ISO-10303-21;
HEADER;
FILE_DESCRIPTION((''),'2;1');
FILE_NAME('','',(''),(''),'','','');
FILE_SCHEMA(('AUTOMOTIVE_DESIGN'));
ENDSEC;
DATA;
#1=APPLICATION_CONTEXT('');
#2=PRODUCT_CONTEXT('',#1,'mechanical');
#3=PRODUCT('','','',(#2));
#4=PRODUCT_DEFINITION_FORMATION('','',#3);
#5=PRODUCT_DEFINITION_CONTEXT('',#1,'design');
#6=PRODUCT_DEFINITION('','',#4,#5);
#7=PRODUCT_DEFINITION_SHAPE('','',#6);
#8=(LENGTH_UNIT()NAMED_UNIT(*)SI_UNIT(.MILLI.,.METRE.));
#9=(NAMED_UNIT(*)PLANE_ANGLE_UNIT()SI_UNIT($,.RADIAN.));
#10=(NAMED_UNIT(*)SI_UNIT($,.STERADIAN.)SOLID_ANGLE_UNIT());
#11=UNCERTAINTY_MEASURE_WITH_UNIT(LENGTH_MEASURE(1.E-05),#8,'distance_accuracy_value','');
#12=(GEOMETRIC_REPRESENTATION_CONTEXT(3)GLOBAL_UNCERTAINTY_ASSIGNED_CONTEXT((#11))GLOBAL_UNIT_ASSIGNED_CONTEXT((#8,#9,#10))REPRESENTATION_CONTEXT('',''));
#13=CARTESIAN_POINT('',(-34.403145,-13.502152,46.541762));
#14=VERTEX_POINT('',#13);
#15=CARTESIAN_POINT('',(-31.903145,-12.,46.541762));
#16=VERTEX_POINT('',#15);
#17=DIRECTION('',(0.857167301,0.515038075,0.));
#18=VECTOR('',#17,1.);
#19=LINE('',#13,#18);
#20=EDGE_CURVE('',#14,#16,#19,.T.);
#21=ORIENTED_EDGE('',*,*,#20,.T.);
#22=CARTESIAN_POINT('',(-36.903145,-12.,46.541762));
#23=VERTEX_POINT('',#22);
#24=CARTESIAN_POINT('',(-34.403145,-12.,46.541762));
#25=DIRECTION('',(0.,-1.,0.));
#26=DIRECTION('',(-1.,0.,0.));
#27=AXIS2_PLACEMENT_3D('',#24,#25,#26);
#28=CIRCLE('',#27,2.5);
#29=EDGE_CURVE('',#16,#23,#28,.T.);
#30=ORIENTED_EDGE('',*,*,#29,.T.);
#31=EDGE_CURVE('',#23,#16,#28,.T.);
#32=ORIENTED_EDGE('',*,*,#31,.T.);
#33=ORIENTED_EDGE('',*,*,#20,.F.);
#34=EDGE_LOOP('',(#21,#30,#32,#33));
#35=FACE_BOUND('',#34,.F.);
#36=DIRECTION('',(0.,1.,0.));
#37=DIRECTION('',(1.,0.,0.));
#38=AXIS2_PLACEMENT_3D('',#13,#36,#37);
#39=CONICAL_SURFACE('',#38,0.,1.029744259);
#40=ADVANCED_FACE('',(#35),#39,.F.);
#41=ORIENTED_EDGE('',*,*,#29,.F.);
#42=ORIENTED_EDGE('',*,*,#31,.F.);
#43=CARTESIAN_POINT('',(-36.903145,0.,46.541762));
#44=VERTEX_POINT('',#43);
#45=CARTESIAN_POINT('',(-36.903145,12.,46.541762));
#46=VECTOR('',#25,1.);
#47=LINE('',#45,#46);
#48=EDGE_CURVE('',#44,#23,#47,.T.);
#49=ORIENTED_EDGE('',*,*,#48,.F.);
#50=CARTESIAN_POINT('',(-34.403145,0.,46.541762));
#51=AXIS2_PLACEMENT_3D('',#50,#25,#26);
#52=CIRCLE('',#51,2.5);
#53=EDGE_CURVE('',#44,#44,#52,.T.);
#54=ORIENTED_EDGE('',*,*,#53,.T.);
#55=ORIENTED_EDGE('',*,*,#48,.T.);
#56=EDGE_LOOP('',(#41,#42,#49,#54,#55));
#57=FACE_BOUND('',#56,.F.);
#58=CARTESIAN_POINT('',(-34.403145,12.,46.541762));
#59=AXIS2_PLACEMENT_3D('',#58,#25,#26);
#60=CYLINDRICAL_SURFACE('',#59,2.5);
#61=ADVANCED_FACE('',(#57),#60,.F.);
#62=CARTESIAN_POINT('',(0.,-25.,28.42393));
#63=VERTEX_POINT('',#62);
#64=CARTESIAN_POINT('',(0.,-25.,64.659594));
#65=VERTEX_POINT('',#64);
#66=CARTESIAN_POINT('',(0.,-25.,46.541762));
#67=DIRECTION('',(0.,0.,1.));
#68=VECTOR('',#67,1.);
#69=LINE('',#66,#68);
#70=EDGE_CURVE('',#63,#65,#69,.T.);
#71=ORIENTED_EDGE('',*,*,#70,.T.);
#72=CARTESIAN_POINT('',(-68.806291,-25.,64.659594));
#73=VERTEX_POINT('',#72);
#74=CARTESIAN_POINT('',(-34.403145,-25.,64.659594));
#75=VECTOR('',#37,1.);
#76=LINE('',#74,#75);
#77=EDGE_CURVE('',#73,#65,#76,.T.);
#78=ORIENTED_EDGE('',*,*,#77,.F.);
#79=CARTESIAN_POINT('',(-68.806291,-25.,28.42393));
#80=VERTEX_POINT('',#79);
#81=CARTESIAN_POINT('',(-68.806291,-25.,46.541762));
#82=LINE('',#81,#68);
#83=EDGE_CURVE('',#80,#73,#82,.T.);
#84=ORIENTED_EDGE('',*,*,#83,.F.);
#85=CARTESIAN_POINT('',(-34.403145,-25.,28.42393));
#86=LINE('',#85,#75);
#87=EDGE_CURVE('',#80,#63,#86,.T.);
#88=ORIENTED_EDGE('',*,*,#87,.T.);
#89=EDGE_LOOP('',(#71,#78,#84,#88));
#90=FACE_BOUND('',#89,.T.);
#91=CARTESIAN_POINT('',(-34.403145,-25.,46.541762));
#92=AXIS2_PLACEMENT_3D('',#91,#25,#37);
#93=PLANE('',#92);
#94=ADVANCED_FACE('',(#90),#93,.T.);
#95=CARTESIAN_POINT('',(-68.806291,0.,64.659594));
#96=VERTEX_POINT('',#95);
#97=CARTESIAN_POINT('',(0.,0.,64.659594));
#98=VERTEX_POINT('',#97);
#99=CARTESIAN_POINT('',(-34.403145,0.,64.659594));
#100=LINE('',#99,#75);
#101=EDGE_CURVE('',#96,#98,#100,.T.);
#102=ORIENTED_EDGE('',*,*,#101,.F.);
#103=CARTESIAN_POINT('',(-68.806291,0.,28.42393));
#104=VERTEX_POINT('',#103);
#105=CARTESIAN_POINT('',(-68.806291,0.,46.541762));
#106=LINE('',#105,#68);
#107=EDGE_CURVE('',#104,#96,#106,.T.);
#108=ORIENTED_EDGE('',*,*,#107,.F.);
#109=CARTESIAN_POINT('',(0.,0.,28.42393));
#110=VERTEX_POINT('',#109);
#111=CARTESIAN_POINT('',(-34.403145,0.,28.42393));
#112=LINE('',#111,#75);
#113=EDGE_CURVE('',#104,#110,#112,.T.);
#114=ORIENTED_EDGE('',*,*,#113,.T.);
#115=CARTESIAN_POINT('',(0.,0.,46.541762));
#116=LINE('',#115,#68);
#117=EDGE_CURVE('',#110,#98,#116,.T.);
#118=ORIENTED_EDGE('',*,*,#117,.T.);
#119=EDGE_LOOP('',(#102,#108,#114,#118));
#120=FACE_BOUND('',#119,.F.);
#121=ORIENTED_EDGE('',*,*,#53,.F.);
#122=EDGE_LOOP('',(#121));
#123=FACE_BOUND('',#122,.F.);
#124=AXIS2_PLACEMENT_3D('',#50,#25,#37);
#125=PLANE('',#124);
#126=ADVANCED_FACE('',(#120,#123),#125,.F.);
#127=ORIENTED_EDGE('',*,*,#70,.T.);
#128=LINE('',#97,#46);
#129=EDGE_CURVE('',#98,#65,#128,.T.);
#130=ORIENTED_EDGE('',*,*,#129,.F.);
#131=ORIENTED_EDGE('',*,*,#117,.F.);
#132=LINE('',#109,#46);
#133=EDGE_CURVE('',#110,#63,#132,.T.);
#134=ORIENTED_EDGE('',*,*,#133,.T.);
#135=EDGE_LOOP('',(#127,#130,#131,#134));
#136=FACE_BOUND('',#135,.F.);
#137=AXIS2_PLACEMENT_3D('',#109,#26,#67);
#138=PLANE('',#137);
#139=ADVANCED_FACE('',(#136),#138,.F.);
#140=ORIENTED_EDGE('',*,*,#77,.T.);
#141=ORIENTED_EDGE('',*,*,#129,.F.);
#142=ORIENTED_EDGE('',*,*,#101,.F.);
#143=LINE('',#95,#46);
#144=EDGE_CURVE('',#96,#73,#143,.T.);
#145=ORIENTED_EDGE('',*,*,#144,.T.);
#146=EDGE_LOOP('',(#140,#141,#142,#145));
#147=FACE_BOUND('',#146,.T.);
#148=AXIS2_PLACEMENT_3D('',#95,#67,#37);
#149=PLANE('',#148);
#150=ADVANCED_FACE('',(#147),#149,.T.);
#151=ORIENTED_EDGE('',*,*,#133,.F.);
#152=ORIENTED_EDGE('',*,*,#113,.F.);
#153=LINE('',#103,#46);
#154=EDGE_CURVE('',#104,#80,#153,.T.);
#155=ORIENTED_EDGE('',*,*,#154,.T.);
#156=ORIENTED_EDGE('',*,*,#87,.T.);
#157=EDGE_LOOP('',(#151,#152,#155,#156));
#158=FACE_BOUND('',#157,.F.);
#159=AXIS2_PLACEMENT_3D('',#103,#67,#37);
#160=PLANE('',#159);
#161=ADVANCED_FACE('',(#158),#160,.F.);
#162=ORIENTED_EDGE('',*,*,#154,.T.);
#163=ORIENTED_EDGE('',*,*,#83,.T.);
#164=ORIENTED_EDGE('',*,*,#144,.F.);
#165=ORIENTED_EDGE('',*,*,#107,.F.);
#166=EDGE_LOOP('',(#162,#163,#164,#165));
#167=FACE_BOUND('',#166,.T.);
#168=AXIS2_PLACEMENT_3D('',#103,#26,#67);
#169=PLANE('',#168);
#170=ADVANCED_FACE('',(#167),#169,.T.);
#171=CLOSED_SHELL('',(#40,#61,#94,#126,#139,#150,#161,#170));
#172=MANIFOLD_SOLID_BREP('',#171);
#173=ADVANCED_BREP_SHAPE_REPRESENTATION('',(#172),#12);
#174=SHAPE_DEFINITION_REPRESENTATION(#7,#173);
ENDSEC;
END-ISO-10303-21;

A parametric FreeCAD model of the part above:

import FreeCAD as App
import Part
import Sketcher

V = App.Vector


def add_polygon(sketch, points):
    """Adds a closed chain of lines whose ends are joined by coincident constraints."""
    first, n = sketch.GeometryCount, len(points)
    for a, b in zip(points, points[1:] + points[:1]):
        sketch.addGeometry(Part.LineSegment(App.Vector(*a, 0), App.Vector(*b, 0)), False)
    for i in range(n):
        sketch.addConstraint(Sketcher.Constraint("Coincident", first + i, 2, first + (i + 1) % n, 1))

doc = App.newDocument("Part")
body = doc.addObject("PartDesign::Body", "Body")

sketch1 = body.newObject("Sketcher::SketchObject", "Sketch")
sketch1.AttachmentSupport = (doc.getObject("XZ_Plane"), [""])
sketch1.MapMode = "FlatFace"
add_polygon(sketch1, [(-68.806291, 64.659594), (-68.806291, 28.42393), (0, 28.42393), (0, 64.659594)])
sketch1.addConstraint([
    Sketcher.Constraint("Vertical", 0),
    Sketcher.Constraint("Horizontal", 1),
    Sketcher.Constraint("Vertical", 2),
    Sketcher.Constraint("Horizontal", 3),
    Sketcher.Constraint("PointOnObject", 1, 2, -2),
    Sketcher.Constraint("DistanceX", 1, 1, 1, 2, 68.806291),
    Sketcher.Constraint("DistanceY", 0, 2, 0, 1, 36.235664),
    Sketcher.Constraint("DistanceY", -1, 1, 0, 2, 28.42393),
])
pad1 = body.newObject("PartDesign::Pad", "Pad")
pad1.Profile = sketch1
pad1.Length = 25

sketch2 = body.newObject("Sketcher::SketchObject", "Sketch001")
sketch2.AttachmentSupport = (doc.getObject("XZ_Plane"), [""])
sketch2.MapMode = "FlatFace"
sketch2.addGeometry(Part.Circle(V(-34.403145, 46.541762, 0), V(0, 0, 1), 2.5), False)
sketch2.addConstraint([
    Sketcher.Constraint("Diameter", 0, 5.0),
    Sketcher.Constraint("DistanceY", -1, 1, 0, 3, 46.541762),
    Sketcher.Constraint("DistanceX", 0, 3, -1, 1, 34.403145),
])
doc.recompute()
hole = body.newObject("PartDesign::Hole", "Hole")
hole.Profile = sketch2
hole.ThreadType = "None"
hole.Diameter = 5
hole.DepthType = "Dimension"
hole.Depth = 12
hole.DrillPoint = "Angled"
hole.DrillPointAngle = 118
hole.Reversed = True

doc.recompute()
